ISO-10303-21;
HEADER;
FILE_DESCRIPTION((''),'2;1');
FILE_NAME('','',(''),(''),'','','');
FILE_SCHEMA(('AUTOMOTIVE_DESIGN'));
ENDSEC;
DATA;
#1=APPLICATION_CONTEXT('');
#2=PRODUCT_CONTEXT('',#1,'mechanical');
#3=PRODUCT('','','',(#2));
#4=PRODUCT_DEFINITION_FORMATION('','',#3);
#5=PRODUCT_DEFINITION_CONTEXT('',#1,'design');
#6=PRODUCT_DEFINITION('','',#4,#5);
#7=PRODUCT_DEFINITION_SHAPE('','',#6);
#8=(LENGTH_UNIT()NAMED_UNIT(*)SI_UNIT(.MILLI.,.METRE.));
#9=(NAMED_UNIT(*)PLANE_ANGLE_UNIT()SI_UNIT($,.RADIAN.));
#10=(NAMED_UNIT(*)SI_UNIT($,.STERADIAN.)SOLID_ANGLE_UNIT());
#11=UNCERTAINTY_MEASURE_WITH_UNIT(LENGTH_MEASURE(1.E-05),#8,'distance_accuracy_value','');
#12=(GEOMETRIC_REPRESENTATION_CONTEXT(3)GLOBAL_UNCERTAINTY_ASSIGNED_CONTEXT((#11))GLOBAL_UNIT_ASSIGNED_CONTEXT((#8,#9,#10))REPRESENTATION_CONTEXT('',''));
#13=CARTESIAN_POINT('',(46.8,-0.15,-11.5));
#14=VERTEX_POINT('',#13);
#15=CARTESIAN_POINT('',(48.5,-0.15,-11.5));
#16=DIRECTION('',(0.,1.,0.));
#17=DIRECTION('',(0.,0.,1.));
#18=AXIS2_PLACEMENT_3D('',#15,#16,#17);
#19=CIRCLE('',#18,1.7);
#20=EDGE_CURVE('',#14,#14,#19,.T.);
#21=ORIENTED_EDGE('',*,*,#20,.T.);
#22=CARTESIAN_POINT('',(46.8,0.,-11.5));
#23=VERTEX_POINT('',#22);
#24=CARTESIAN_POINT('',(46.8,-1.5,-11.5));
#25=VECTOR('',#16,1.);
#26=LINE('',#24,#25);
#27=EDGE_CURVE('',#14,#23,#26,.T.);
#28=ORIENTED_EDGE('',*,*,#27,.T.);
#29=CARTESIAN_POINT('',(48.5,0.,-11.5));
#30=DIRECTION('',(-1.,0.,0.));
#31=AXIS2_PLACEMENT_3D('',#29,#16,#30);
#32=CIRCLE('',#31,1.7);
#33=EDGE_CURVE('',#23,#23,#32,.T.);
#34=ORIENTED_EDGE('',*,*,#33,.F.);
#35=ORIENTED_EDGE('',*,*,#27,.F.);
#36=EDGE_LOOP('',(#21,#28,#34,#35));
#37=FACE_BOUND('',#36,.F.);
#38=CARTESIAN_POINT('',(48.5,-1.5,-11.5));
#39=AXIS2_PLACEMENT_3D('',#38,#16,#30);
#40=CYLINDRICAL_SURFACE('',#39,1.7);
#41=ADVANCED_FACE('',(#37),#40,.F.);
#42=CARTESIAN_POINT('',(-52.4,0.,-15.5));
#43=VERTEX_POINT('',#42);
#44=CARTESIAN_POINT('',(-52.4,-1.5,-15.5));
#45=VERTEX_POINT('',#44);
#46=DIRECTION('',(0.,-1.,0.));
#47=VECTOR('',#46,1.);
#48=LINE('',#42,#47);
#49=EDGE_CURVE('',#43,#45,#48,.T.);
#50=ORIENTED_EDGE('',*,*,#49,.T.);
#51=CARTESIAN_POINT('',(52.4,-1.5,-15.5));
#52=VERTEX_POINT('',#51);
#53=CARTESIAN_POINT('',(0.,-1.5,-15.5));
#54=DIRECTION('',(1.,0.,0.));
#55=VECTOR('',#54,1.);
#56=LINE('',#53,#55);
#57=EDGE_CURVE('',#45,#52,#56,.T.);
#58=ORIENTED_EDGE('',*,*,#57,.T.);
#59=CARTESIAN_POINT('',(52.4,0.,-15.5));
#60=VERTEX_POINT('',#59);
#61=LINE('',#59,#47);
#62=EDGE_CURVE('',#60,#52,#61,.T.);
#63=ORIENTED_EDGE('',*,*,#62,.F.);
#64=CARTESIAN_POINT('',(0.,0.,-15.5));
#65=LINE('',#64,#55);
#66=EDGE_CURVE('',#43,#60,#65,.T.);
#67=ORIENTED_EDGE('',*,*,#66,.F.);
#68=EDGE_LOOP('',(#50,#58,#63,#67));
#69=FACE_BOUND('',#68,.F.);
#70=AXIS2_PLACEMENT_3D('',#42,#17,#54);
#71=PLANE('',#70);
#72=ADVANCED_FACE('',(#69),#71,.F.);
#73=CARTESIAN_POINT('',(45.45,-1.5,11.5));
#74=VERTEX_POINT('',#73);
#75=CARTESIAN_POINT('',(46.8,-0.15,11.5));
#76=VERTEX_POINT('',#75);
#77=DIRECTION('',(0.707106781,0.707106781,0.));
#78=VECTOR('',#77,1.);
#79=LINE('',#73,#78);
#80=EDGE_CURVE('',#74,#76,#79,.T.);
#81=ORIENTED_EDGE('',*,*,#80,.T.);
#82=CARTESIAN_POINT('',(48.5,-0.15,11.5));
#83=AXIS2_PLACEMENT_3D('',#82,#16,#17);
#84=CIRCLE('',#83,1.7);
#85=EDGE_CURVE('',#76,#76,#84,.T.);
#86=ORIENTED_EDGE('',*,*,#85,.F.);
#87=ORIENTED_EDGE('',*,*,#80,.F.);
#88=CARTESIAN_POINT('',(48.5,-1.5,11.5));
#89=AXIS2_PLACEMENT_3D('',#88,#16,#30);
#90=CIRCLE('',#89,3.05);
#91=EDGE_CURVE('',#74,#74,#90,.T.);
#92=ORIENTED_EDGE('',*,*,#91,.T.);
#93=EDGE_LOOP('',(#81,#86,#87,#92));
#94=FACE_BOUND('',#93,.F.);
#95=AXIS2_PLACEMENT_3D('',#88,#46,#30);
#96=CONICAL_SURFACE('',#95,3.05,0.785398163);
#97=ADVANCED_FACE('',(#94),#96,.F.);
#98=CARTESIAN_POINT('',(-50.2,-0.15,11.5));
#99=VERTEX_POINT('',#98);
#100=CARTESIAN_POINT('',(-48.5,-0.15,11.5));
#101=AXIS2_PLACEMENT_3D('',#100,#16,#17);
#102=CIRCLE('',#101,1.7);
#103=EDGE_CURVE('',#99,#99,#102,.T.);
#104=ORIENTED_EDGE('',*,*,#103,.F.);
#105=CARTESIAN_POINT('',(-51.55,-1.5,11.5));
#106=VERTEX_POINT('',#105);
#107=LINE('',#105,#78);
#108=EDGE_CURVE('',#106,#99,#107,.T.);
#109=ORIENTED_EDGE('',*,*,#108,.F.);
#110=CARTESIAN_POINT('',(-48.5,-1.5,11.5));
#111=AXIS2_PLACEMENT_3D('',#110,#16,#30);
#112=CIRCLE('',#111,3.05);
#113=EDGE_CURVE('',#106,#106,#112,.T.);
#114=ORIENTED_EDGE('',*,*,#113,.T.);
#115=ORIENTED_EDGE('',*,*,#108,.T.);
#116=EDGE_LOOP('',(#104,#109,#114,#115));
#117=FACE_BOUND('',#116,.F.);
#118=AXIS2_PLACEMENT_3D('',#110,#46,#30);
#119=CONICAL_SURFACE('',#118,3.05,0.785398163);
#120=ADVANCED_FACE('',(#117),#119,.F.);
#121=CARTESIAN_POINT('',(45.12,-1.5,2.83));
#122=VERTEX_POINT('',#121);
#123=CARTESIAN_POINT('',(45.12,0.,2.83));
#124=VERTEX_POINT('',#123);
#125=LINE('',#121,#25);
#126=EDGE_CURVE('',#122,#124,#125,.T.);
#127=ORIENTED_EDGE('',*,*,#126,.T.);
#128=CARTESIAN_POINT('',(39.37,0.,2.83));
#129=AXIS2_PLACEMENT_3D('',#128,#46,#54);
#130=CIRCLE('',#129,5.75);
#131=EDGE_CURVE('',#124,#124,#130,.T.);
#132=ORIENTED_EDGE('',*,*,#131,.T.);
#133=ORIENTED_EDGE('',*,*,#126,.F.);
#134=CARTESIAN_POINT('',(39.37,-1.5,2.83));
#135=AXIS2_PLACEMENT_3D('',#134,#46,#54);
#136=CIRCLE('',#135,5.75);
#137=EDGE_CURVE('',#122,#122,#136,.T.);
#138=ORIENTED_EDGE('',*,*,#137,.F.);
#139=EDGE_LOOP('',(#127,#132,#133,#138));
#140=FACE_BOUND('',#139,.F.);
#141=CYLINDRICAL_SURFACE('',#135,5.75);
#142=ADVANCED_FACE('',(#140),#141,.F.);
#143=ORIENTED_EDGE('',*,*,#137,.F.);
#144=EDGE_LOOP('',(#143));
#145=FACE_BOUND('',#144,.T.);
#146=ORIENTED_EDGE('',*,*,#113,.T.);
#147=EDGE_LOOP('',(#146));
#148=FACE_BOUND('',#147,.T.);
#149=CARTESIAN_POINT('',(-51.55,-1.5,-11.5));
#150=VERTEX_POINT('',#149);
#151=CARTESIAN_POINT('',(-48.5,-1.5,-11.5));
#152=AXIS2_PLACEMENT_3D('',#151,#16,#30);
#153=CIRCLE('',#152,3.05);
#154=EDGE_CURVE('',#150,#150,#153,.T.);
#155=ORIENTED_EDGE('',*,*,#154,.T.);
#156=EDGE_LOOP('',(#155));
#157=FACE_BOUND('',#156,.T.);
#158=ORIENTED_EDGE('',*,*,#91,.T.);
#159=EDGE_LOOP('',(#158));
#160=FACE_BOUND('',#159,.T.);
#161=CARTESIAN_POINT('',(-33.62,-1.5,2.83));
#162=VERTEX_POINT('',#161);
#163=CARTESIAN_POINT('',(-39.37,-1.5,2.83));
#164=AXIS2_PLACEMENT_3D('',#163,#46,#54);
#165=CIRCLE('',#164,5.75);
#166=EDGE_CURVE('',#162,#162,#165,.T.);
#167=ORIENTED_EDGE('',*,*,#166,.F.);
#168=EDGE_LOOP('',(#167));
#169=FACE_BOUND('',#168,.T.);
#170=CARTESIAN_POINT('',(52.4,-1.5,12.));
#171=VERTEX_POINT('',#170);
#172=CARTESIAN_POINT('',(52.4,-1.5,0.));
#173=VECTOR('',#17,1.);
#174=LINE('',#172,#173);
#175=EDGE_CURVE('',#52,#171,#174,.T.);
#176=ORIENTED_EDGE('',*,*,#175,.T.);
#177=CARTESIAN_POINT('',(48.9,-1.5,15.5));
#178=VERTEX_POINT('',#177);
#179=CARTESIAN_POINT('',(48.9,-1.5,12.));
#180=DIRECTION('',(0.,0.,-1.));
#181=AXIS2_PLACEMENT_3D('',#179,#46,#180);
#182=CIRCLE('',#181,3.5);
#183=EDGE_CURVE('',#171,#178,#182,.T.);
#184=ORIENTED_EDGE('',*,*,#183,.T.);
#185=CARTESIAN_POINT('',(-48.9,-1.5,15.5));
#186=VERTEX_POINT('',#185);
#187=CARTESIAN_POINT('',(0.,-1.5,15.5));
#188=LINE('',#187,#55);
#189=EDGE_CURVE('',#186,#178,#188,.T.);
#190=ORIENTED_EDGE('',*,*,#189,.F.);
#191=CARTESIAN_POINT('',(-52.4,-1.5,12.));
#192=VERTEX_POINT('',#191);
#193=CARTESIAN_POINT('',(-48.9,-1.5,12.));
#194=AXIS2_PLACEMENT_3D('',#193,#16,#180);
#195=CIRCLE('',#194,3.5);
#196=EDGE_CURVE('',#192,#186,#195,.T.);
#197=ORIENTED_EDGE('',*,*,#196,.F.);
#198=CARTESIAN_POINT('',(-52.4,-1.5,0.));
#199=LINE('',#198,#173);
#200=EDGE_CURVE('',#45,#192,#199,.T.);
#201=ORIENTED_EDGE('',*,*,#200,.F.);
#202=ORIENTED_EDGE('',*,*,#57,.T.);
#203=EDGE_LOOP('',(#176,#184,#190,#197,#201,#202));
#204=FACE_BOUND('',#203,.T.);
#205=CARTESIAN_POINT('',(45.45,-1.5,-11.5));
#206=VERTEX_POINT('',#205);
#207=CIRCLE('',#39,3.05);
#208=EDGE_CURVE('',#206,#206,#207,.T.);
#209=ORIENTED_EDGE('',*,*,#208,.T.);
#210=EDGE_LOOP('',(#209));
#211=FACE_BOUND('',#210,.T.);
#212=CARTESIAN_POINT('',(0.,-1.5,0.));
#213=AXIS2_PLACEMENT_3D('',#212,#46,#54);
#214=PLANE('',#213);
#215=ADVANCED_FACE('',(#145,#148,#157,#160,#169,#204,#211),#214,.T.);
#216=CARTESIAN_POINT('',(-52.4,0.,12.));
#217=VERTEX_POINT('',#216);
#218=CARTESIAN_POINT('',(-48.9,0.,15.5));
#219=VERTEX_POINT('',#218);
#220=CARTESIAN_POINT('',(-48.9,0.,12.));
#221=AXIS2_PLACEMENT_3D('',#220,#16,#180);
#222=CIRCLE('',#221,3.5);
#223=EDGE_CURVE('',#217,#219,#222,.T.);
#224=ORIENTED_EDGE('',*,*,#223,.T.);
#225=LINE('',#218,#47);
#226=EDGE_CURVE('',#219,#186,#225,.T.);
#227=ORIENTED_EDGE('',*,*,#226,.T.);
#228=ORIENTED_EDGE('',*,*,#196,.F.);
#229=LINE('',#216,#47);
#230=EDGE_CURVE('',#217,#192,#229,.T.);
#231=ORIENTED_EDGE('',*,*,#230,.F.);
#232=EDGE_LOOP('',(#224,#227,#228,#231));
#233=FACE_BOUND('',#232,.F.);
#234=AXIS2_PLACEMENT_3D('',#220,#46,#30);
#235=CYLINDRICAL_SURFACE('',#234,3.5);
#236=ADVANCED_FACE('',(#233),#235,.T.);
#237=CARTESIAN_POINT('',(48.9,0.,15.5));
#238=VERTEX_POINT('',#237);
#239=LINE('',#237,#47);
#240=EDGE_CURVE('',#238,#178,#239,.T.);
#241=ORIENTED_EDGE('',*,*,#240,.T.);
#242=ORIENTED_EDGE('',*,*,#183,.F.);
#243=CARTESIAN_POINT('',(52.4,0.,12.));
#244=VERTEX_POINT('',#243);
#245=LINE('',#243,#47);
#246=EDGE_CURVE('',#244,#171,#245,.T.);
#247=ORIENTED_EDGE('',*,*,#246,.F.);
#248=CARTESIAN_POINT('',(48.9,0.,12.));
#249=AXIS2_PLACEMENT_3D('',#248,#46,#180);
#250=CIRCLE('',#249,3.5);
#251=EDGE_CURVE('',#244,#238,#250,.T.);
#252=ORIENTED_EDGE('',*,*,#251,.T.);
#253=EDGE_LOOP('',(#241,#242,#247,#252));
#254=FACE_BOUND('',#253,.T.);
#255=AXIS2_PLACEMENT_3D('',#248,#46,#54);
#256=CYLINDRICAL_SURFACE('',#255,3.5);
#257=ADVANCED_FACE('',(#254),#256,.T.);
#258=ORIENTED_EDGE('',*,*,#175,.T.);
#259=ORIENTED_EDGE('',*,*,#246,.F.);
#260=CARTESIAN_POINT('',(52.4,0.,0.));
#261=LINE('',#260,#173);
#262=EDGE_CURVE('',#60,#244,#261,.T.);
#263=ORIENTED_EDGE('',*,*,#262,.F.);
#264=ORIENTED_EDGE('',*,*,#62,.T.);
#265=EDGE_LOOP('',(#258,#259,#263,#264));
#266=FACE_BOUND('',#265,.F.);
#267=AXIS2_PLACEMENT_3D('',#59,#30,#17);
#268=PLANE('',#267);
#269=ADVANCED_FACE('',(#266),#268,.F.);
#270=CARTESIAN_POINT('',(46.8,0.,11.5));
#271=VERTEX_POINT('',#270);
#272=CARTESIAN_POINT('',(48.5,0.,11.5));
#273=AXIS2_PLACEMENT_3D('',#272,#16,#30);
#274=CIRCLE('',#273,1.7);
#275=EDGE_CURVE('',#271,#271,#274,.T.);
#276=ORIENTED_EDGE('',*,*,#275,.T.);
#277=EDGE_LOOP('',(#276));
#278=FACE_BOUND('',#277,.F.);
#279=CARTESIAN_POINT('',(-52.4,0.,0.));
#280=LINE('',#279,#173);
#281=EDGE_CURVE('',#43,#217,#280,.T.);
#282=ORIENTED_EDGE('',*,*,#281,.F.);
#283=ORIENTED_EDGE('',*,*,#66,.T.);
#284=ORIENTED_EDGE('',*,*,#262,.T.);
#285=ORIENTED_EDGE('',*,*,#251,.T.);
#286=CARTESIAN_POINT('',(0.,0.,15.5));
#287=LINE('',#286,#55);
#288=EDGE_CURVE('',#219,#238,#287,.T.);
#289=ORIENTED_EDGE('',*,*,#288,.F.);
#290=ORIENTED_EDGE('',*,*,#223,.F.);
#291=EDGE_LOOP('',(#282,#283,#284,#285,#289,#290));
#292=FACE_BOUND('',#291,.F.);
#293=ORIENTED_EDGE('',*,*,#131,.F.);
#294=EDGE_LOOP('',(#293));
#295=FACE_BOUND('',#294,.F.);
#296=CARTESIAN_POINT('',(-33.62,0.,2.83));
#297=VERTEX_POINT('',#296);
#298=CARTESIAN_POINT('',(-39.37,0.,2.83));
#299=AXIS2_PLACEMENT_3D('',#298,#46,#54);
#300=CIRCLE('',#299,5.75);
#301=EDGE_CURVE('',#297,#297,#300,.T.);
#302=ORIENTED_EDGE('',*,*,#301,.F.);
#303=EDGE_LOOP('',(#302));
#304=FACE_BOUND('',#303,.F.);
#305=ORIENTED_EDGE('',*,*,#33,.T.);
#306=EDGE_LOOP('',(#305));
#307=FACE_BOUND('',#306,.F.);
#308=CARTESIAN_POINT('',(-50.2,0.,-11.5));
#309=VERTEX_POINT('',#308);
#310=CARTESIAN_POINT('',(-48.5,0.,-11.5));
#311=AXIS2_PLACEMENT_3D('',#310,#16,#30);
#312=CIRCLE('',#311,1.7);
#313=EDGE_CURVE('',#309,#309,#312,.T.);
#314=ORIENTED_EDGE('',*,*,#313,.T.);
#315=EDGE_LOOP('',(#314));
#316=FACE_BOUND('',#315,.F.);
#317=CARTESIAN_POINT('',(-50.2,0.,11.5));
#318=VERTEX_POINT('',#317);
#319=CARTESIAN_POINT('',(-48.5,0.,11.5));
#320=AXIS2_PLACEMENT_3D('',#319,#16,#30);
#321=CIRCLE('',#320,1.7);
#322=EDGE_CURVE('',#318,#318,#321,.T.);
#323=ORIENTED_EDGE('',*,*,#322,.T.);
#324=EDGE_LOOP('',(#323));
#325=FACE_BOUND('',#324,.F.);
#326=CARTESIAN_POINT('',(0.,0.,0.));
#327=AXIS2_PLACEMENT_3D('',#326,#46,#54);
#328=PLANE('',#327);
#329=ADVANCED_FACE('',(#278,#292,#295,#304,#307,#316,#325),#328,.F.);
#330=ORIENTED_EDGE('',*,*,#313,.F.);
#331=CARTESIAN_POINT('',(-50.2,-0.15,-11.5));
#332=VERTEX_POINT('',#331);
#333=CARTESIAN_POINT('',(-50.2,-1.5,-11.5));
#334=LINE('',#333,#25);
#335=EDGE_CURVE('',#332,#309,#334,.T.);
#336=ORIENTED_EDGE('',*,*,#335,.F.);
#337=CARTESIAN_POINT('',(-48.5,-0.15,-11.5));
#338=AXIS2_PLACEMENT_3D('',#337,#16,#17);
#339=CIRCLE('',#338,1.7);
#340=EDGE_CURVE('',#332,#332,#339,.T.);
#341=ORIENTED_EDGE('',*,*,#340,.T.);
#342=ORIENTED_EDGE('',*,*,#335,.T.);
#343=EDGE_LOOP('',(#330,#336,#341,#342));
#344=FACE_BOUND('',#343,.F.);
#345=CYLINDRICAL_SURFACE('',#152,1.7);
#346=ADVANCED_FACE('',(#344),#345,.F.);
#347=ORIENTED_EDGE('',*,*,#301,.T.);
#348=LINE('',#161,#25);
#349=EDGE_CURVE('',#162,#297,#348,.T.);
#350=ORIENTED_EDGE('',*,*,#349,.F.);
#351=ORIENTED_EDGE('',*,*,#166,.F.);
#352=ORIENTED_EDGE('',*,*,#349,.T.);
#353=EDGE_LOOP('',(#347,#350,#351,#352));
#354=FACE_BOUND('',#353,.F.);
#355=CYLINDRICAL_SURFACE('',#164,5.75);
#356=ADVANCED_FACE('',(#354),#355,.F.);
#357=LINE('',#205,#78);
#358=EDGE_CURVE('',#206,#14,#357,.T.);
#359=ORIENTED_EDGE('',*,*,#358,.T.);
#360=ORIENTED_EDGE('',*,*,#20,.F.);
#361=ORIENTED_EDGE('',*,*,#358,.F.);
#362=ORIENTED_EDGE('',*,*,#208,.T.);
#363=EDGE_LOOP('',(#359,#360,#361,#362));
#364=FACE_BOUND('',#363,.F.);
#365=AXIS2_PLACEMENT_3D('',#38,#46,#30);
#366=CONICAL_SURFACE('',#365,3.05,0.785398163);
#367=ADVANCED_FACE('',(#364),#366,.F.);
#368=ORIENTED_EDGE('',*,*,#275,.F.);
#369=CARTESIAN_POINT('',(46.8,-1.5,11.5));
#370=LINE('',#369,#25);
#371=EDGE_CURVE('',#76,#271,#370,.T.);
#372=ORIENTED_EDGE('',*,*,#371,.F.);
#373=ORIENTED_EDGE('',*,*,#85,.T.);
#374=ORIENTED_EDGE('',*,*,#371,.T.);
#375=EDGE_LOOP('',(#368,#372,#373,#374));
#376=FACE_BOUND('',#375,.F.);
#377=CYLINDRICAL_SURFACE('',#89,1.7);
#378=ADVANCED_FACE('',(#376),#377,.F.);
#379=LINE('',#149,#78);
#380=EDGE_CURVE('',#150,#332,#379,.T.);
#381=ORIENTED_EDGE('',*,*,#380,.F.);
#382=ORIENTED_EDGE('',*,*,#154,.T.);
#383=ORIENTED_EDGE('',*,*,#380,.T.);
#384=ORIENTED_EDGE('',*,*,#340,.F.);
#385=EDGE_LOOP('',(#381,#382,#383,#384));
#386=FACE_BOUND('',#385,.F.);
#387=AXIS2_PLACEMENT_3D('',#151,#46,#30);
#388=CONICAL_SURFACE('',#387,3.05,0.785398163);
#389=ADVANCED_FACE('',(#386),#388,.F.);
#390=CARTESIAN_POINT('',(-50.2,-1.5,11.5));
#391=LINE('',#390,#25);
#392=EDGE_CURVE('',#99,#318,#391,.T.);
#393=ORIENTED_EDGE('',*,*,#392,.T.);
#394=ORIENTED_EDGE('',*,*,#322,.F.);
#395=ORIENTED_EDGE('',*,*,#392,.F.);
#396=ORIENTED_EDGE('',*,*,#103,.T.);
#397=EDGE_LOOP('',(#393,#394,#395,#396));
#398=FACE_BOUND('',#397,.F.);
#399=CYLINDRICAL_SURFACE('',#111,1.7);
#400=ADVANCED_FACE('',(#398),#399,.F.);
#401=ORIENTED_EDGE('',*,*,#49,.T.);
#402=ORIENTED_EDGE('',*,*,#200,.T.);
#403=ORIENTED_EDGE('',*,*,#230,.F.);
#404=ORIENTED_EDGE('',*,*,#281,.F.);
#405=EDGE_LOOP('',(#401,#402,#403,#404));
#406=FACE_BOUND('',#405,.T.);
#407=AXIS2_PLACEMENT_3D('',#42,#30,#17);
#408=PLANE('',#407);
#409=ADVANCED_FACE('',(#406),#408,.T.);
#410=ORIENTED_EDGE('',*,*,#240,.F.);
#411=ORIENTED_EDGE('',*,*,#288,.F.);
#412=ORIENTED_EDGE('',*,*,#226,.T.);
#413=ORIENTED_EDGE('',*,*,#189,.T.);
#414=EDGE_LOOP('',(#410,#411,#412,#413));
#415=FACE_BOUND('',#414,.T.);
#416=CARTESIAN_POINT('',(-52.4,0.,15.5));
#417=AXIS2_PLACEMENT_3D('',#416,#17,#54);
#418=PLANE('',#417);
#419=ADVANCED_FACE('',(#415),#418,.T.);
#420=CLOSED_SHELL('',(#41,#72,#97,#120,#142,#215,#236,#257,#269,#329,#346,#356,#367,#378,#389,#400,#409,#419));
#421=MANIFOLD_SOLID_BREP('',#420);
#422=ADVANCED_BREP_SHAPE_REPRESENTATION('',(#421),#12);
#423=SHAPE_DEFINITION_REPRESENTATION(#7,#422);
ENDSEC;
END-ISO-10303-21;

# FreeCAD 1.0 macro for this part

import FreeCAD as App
import Part
import Sketcher
from FreeCAD import Vector
Q = App.Units.Quantity


def edges_at(feature, points):
    """Names of the edges that pass closest to the given points."""
    edges = feature.Shape.Edges
    near = lambda p: min(range(len(edges)), key=lambda i: edges[i].distToShape(Part.Vertex(*p))[0])
    return sorted({f"Edge{near(p) + 1}" for p in points})


def add_polygon(sketch, points):
    """Adds a closed chain of lines whose ends are joined by coincident constraints."""
    first, n = sketch.GeometryCount, len(points)
    for a, b in zip(points, points[1:] + points[:1]):
        sketch.addGeometry(Part.LineSegment(App.Vector(*a, 0), App.Vector(*b, 0)), False)
    for i in range(n):
        sketch.addConstraint(Sketcher.Constraint("Coincident", first + i, 2, first + (i + 1) % n, 1))

doc = App.newDocument("Part")
params = doc.addObject("Spreadsheet::Sheet", "Params")
for row, (alias, value) in enumerate([
    ("sketch1_height", "31 mm"),
    ("sketch1_width", "104.8 mm"),
    ("pad1_length", "1.5 mm"),
    ("sketch2_diameter", "3.4 mm"),
    ("hole_diameter", "3.4 mm"),
    ("hole_depth", "25 mm"),
    ("hole_csink_diameter", "6.1 mm"),
    ("fillet_radius", "3.5 mm"),
    ("sketch3_diameter", "11.5 mm"),
    ("linearpattern_pitch", "78.74 mm"),
], start=1):
    params.set(f"A{row}", alias)
    params.set(f"B{row}", "=" + value)
    params.setAlias(f"B{row}", alias)

body = doc.addObject("PartDesign::Body", "Body")

sketch1 = body.newObject("Sketcher::SketchObject", "Sketch")
sketch1.AttachmentSupport = (doc.getObject("XZ_Plane"), [""])
sketch1.MapMode = "FlatFace"
add_polygon(sketch1, [(-52.4, 15.5), (-52.4, -15.5), (52.4, -15.5), (52.4, 15.5)])
sketch1.addConstraint(Sketcher.Constraint("Vertical", 0))
sketch1.addConstraint(Sketcher.Constraint("Horizontal", 1))
sketch1.addConstraint(Sketcher.Constraint("Vertical", 2))
sketch1.addConstraint(Sketcher.Constraint("Horizontal", 3))
sketch1.addConstraint(Sketcher.Constraint("Symmetric", 0, 2, 2, 2, -1, 1))
sketch1.addConstraint(Sketcher.Constraint("DistanceY", 0, 2, 0, 1, Q("31 mm")))
sketch1.addConstraint(Sketcher.Constraint("DistanceX", 1, 1, 1, 2, Q("104.8 mm")))
sketch1.setExpression("Constraints[9]", "Params.sketch1_height")
sketch1.setExpression("Constraints[10]", "Params.sketch1_width")
pad1 = body.newObject("PartDesign::Pad", "Pad")
pad1.Profile = sketch1
pad1.setExpression("Length", "Params.pad1_length")

sketch2 = body.newObject("Sketcher::SketchObject", "Sketch001")
sketch2.AttachmentSupport = (doc.getObject("XZ_Plane"), [""])
sketch2.MapMode = "FlatFace"
sketch2.AttachmentOffset = App.Placement(Vector(0, 0, 1.5), App.Rotation())
sketch2.addGeometry(Part.Circle(Vector(-48.5, 11.5, 0), Vector(0, 0, 1), 1.7), False)
sketch2.addGeometry(Part.Circle(Vector(-48.5, -11.5, 0), Vector(0, 0, 1), 1.7), False)
sketch2.addGeometry(Part.Circle(Vector(48.5, -11.5, 0), Vector(0, 0, 1), 1.7), False)
sketch2.addGeometry(Part.Circle(Vector(48.5, 11.5, 0), Vector(0, 0, 1), 1.7), False)
sketch2.addConstraint(Sketcher.Constraint("Equal", 0, 1))
sketch2.addConstraint(Sketcher.Constraint("Equal", 1, 2))
sketch2.addConstraint(Sketcher.Constraint("Equal", 2, 3))
sketch2.addConstraint(Sketcher.Constraint("Symmetric", 0, 3, 2, 3, -1, 1))
sketch2.addConstraint(Sketcher.Constraint("Symmetric", 1, 3, 3, 3, -1, 1))
sketch2.addConstraint(Sketcher.Constraint("Symmetric", 1, 3, 2, 3, -2))
sketch2.addConstraint(Sketcher.Constraint("Diameter", 0, Q("3.4 mm")))
sketch2.addConstraint(Sketcher.Constraint("DistanceY", 1, 3, 0, 3, Q("23 mm")))
sketch2.addConstraint(Sketcher.Constraint("DistanceX", 1, 3, 2, 3, Q("97 mm")))
sketch2.setExpression("Constraints[6]", "Params.sketch2_diameter")
doc.recompute()
hole = body.newObject("PartDesign::Hole", "Hole")
hole.Profile = sketch2
hole.ThreadType = "None"
hole.setExpression("Diameter", "Params.hole_diameter")
hole.DepthType = "Dimension"
hole.setExpression("Depth", "Params.hole_depth")
hole.DrillPoint = "Flat"
hole.HoleCutType = "Countersink"
hole.setExpression("HoleCutDiameter", "Params.hole_csink_diameter")
hole.HoleCutCountersinkAngle = 90
doc.recompute()

fillet = body.newObject("PartDesign::Fillet", "Fillet")
fillet.Base = (hole, edges_at(hole, [(-52.4, -0.75, 15.5), (52.4, -0.75, 15.5)]))
fillet.setExpression("Radius", "Params.fillet_radius")

sketch3 = body.newObject("Sketcher::SketchObject", "Sketch002")
sketch3.AttachmentSupport = (doc.getObject("XZ_Plane"), [""])
sketch3.MapMode = "FlatFace"
sketch3.AttachmentOffset = App.Placement(Vector(0, 0, 1.5), App.Rotation())
sketch3.addGeometry(Part.Circle(Vector(-39.37, 2.83, 0), Vector(0, 0, 1), 5.75), False)
sketch3.addConstraint(Sketcher.Constraint("Diameter", 0, Q("11.5 mm")))
sketch3.addConstraint(Sketcher.Constraint("DistanceX", 0, 3, -1, 1, Q("39.37 mm")))
sketch3.addConstraint(Sketcher.Constraint("DistanceY", -1, 1, 0, 3, Q("2.83 mm")))
sketch3.setExpression("Constraints[0]", "Params.sketch3_diameter")
pocket1 = body.newObject("PartDesign::Pocket", "Pocket")
pocket1.Profile = sketch3
pocket1.Type = "ThroughAll"
doc.recompute()

linearpattern = body.newObject("PartDesign::LinearPattern", "LinearPattern")
linearpattern.Originals = [pocket1]
linearpattern.Direction = (doc.getObject("X_Axis"), [""])
linearpattern.Mode = "offset"
linearpattern.setExpression("Offset", "Params.linearpattern_pitch")
linearpattern.Occurrences = 2
body.Tip = linearpattern

doc.recompute()
